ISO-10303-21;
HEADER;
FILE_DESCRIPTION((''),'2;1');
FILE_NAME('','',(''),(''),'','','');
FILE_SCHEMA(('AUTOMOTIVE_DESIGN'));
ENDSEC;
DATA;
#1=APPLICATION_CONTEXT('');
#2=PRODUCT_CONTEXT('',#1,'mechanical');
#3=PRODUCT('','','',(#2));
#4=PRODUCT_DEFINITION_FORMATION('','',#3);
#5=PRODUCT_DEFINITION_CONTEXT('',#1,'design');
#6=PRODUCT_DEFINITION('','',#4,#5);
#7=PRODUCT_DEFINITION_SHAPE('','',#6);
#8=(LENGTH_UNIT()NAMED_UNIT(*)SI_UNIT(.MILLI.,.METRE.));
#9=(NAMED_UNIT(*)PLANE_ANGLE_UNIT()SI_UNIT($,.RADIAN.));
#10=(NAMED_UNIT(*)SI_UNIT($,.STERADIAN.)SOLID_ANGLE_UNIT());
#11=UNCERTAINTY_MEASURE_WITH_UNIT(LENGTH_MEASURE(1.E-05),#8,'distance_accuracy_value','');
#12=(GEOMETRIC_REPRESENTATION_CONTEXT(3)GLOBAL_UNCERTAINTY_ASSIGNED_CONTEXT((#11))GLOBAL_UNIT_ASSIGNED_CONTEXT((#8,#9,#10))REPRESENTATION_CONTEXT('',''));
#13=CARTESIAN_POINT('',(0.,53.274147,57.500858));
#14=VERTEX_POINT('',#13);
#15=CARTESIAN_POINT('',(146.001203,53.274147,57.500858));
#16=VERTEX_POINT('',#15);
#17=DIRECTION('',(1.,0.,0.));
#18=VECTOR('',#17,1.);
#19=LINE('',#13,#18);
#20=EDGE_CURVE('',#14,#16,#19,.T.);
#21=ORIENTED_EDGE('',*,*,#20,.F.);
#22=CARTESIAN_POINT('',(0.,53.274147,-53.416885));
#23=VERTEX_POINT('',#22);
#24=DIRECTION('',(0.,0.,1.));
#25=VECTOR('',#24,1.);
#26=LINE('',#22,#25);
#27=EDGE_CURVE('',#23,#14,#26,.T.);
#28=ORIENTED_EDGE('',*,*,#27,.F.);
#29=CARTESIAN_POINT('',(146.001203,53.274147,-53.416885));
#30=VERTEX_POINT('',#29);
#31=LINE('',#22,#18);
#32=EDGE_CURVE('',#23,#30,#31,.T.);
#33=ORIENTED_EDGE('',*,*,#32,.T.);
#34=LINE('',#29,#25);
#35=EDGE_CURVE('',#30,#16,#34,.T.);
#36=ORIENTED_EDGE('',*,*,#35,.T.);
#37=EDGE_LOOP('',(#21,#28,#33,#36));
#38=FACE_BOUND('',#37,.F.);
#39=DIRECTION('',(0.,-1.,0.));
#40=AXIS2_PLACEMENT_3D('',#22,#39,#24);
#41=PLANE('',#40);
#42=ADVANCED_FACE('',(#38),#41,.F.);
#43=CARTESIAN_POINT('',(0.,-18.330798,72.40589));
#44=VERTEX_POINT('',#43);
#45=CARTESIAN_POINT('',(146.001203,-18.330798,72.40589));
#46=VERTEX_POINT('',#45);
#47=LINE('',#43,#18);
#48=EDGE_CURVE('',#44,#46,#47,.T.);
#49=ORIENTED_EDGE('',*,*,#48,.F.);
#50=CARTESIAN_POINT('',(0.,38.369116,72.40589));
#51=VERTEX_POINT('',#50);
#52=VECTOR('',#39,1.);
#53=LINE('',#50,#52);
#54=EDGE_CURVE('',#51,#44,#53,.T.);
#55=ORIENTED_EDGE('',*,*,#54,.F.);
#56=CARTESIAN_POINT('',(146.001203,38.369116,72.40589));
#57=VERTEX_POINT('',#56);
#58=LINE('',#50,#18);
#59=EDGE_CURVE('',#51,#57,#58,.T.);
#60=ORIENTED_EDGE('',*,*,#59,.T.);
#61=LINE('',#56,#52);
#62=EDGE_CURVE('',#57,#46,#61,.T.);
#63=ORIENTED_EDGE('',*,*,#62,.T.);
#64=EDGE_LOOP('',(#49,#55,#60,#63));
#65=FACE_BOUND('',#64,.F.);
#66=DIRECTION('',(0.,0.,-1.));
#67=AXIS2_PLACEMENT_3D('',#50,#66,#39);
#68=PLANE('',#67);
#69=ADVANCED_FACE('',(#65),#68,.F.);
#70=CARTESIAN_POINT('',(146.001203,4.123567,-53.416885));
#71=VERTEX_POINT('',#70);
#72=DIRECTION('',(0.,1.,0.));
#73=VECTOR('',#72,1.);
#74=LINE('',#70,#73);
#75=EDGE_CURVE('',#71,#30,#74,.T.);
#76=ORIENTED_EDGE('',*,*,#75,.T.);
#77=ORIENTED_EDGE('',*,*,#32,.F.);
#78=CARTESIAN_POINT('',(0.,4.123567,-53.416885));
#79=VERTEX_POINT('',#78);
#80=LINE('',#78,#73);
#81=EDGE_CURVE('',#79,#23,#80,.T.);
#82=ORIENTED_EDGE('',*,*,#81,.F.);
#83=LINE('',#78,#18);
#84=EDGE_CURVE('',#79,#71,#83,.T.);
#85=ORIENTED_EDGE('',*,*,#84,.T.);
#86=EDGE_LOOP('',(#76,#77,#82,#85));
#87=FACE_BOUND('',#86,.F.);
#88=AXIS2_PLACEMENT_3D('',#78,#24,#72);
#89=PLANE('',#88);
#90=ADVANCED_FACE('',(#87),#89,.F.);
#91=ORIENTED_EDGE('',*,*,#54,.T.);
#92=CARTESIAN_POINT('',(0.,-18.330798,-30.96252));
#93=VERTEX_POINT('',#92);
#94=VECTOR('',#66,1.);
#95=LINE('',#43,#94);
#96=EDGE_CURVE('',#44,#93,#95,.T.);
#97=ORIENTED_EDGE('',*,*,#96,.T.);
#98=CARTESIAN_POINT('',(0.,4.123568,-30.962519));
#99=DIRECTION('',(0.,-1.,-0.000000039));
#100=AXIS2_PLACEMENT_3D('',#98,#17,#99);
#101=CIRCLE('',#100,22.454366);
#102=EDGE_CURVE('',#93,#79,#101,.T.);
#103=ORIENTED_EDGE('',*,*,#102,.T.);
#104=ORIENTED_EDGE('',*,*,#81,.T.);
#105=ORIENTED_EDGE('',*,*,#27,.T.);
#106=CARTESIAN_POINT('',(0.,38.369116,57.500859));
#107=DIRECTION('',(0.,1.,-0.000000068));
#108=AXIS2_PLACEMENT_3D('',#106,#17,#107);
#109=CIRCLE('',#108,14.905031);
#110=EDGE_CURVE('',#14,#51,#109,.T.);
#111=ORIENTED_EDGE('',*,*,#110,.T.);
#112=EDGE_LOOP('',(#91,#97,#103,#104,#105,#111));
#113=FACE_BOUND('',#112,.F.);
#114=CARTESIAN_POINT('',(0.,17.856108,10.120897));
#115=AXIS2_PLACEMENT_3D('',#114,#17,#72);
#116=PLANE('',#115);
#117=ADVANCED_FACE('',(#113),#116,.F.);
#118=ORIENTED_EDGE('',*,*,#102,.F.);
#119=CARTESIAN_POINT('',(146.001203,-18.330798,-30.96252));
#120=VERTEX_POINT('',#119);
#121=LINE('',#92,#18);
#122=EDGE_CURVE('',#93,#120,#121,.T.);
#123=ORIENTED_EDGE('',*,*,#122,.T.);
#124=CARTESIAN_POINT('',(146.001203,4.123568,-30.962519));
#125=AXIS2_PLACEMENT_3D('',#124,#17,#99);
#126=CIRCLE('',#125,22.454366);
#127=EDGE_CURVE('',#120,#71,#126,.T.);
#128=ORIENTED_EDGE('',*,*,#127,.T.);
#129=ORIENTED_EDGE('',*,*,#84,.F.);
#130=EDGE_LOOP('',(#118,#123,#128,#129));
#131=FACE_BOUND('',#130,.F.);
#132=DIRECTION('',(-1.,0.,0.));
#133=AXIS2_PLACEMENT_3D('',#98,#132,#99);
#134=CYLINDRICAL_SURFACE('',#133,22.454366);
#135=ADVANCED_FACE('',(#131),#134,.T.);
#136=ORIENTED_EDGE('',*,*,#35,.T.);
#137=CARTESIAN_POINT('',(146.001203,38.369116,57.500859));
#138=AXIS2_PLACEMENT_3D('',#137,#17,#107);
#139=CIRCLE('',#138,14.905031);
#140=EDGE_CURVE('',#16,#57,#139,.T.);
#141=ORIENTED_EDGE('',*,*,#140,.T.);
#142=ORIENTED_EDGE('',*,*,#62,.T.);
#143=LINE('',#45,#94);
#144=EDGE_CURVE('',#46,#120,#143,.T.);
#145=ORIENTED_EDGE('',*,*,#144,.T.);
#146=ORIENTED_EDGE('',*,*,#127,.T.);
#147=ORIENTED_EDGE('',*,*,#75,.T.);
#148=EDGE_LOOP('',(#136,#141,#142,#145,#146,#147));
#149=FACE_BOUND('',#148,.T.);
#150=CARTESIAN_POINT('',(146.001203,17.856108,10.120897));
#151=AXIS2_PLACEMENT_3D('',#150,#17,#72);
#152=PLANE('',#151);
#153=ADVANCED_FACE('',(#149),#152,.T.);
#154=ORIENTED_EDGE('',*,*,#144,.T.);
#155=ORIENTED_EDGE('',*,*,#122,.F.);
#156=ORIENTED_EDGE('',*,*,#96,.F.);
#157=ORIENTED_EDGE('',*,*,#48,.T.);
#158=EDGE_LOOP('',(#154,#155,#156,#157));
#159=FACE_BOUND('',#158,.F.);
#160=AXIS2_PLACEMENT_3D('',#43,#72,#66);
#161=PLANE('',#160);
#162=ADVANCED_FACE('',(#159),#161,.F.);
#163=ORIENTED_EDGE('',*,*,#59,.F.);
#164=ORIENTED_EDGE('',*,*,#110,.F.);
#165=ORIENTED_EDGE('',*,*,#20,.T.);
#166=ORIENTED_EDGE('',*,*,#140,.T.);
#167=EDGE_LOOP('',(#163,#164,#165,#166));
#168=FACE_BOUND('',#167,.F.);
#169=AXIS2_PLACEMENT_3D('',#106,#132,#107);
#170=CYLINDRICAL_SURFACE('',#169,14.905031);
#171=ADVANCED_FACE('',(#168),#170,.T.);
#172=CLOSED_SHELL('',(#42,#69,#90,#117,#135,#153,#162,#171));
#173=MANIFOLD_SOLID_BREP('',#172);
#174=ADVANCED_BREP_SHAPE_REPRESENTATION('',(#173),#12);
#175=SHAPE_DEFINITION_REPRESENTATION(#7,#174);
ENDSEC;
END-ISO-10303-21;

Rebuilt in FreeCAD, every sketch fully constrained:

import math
import FreeCAD as App
import Part
import Sketcher
from FreeCAD import Vector
Q = App.Units.Quantity

doc = App.newDocument("Part")
params = doc.addObject("Spreadsheet::Sheet", "Params")
for row, (alias, value) in enumerate([
    ("pad1_length", "146.001203 mm"),
], start=1):
    params.set(f"A{row}", alias)
    params.set(f"B{row}", "=" + value)
    params.setAlias(f"B{row}", alias)

body = doc.addObject("PartDesign::Body", "Body")

# Sketch on YZ plane
sketch1 = body.newObject("Sketcher::SketchObject", "Sketch")
sketch1.AttachmentSupport = (doc.getObject("YZ_Plane"), [""])
sketch1.MapMode = "FlatFace"
sketch1.addGeometry(Part.LineSegment(Vector(38, 72, 0), Vector(-18, 72, 0)), False)
sketch1.addGeometry(Part.LineSegment(Vector(-18, 72, 0), Vector(-18, -31, 0)), False)
sketch1.addGeometry(Part.ArcOfCircle(Part.Circle(Vector(4, -31, 0), Vector(0, 0, 1), 22), math.radians(-180), math.radians(-90)), False)
sketch1.addGeometry(Part.LineSegment(Vector(4, -53, 0), Vector(53, -53, 0)), False)
sketch1.addGeometry(Part.LineSegment(Vector(53, -53, 0), Vector(53, 58, 0)), False)
sketch1.addGeometry(Part.ArcOfCircle(Part.Circle(Vector(38, 58, 0), Vector(0, 0, 1), 15), math.radians(0), math.radians(90)), False)
sketch1.addConstraint(Sketcher.Constraint("Coincident", 0, 2, 1, 1))
sketch1.addConstraint(Sketcher.Constraint("Tangent", 1, 2, 2, 1))
sketch1.addConstraint(Sketcher.Constraint("Tangent", 2, 2, 3, 1))
sketch1.addConstraint(Sketcher.Constraint("Coincident", 3, 2, 4, 1))
sketch1.addConstraint(Sketcher.Constraint("Tangent", 4, 2, 5, 1))
sketch1.addConstraint(Sketcher.Constraint("Tangent", 5, 2, 0, 1))
sketch1.addConstraint(Sketcher.Constraint("Horizontal", 0))
sketch1.addConstraint(Sketcher.Constraint("Vertical", 1))
sketch1.addConstraint(Sketcher.Constraint("Horizontal", 3))
sketch1.addConstraint(Sketcher.Constraint("Vertical", 4))
sketch1.addConstraint(Sketcher.Constraint("Radius", 5, Q("14.905031 mm")))
sketch1.addConstraint(Sketcher.Constraint("Radius", 2, Q("22.454366 mm")))
sketch1.addConstraint(Sketcher.Constraint("DistanceX", 3, 1, 3, 2, Q("49.15058 mm")))
sketch1.addConstraint(Sketcher.Constraint("DistanceY", 1, 2, 1, 1, Q("103.36841 mm")))
sketch1.addConstraint(Sketcher.Constraint("DistanceX", 0, 2, -1, 1, Q("18.330798 mm")))
sketch1.addConstraint(Sketcher.Constraint("DistanceY", 2, 3, -1, 1, Q("30.962519 mm")))
pad1 = body.newObject("PartDesign::Pad", "Pad")
pad1.Profile = sketch1
pad1.setExpression("Length", "Params.pad1_length")

doc.recompute()
